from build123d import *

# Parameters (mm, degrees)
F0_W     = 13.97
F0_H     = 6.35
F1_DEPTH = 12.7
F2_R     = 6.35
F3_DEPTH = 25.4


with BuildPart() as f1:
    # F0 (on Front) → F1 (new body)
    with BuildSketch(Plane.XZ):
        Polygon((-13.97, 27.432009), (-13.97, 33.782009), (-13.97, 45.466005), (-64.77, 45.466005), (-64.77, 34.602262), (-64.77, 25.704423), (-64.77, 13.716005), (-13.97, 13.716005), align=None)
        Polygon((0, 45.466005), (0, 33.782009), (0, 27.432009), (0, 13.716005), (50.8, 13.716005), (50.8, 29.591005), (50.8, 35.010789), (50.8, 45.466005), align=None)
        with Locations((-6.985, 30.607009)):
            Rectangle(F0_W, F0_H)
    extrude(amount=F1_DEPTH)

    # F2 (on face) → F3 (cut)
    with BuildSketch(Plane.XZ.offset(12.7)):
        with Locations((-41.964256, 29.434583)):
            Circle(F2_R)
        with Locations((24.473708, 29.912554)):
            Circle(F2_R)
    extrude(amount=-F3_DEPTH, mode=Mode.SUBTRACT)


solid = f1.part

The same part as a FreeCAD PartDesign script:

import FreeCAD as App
import Part
import Sketcher
Q = App.Units.Quantity


def add_polygon(sketch, points):
    """Adds a closed chain of lines whose ends are joined by coincident constraints."""
    first, n = sketch.GeometryCount, len(points)
    for a, b in zip(points, points[1:] + points[:1]):
        sketch.addGeometry(Part.LineSegment(App.Vector(*a, 0), App.Vector(*b, 0)), False)
    for i in range(n):
        sketch.addConstraint(Sketcher.Constraint("Coincident", first + i, 2, first + (i + 1) % n, 1))

doc = App.newDocument("Part")
body = doc.addObject("PartDesign::Body", "Body")

# Sketch on XZ plane
sketch1 = body.newObject("Sketcher::SketchObject", "Sketch")
sketch1.AttachmentSupport = (doc.getObject("XZ_Plane"), [""])
sketch1.MapMode = "FlatFace"
add_polygon(sketch1, [(-14, 45), (-65, 45), (-65, 14), (-14, 14), (-14, 27), (0, 27), (0, 14), (51, 14), (51, 45), (0, 45), (0, 34), (-14, 34)])  # lines 0-11
sketch1.addConstraint([
    Sketcher.Constraint("Horizontal", 0),
    Sketcher.Constraint("Vertical", 1),
    Sketcher.Constraint("Horizontal", 2),
    Sketcher.Constraint("Vertical", 3),
    Sketcher.Constraint("Horizontal", 4),
    Sketcher.Constraint("Vertical", 5),
    Sketcher.Constraint("Horizontal", 6),
    Sketcher.Constraint("Vertical", 7),
    Sketcher.Constraint("Horizontal", 8),
    Sketcher.Constraint("Vertical", 9),
    Sketcher.Constraint("Horizontal", 10),
    Sketcher.Constraint("Vertical", 11),
    Sketcher.Constraint("PointOnObject", 4, 2, -2),
    Sketcher.Constraint("PointOnObject", 8, 2, -2),
    Sketcher.Constraint("Horizontal", 2, 2, 5, 2),
    Sketcher.Constraint("Horizontal", 0, 2, 7, 2),
    Sketcher.Constraint("Vertical", 3, 2, 10, 2),
    Sketcher.Constraint("Equal", 2, 6),
    Sketcher.Constraint("DistanceX", 0, 2, 0, 1, Q("2 in")),
    Sketcher.Constraint("DistanceX", 4, 1, 4, 2, Q("0.55 in")),
    Sketcher.Constraint("DistanceY", 1, 2, 1, 1, Q("1.25 in")),
    Sketcher.Constraint("DistanceY", 3, 1, 3, 2, Q("0.5400002 in")),
    Sketcher.Constraint("DistanceY", 9, 2, 9, 1, Q("0.4599998 in")),
    Sketcher.Constraint("DistanceY", -1, 1, 0, 2, Q("1.7900002 in")),
])
pad1 = body.newObject("PartDesign::Pad", "Pad")
pad1.Profile = sketch1
pad1.Length = Q("0.5 in")

# Sketch on XZ plane
sketch2 = body.newObject("Sketcher::SketchObject", "Sketch001")
sketch2.AttachmentSupport = (doc.getObject("XZ_Plane"), [""])
sketch2.MapMode = "FlatFace"
sketch2.AttachmentOffset = App.Placement(App.Vector(0, 0, 0.5 * 25.4), App.Rotation())
sketch2.addGeometry([
    Part.Circle(App.Vector(-42, 29, 0), App.Vector(0, 0, 1), 6),
    Part.Circle(App.Vector(24, 30, 0), App.Vector(0, 0, 1), 6),
], False)
sketch2.addConstraint([
    Sketcher.Constraint("Equal", 0, 1),
    Sketcher.Constraint("Diameter", 0, Q("0.5 in")),
    Sketcher.Constraint("DistanceY", 0, 3, 1, 3, 0.477971),
    Sketcher.Constraint("DistanceX", 0, 3, -1, 1, 41.964256),
    Sketcher.Constraint("DistanceY", -1, 1, 0, 3, 29.434583),
    Sketcher.Constraint("DistanceX", -1, 1, 1, 3, 24.473708),
])
pocket1 = body.newObject("PartDesign::Pocket", "Pocket")
pocket1.Profile = sketch2
pocket1.Length = Q("1 in")

doc.recompute()
